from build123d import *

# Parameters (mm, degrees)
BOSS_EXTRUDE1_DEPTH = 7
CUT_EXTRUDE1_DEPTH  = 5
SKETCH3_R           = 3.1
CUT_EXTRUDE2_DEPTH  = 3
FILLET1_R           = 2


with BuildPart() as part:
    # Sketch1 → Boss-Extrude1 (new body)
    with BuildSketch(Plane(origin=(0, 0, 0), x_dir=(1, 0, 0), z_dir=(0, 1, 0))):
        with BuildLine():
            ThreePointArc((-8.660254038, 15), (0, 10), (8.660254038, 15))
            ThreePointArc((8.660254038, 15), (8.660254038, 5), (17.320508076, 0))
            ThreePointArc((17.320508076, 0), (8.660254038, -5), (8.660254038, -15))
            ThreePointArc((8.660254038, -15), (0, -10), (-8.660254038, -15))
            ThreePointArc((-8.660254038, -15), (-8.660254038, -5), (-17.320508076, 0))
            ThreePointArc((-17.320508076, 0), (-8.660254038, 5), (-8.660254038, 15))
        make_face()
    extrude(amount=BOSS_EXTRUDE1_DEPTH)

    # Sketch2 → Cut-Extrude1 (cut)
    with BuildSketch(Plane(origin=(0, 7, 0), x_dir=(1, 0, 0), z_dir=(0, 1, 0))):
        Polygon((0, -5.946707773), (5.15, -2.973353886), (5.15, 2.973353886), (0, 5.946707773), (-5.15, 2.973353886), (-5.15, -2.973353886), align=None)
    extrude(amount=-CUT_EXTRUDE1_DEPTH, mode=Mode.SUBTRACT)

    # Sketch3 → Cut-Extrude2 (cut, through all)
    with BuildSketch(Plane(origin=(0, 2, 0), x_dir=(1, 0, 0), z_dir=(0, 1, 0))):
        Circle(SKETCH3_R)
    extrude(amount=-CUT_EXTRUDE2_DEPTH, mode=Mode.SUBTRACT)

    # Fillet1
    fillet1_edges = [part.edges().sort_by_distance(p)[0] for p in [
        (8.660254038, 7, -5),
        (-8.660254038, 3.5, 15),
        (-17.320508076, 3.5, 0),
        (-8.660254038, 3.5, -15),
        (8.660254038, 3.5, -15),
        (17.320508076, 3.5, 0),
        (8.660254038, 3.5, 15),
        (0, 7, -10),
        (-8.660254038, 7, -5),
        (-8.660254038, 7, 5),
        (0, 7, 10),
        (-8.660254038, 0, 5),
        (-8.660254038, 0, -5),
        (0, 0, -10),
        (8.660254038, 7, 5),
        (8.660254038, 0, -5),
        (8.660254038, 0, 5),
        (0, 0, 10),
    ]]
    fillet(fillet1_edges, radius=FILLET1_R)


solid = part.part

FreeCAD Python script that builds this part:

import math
import FreeCAD as App
import Part
import Sketcher
Q = App.Units.Quantity


def edges_at(feature, points):
    """Names of the edges that pass closest to the given points."""
    edges = feature.Shape.Edges
    near = lambda p: min(range(len(edges)), key=lambda i: edges[i].distToShape(Part.Vertex(*p))[0])
    return sorted({f"Edge{near(p) + 1}" for p in points})

doc = App.newDocument("Part")
body = doc.addObject("PartDesign::Body", "Body")

# Sketch on XZ plane
sketch1 = doc.addObject("Sketcher::SketchObject", "Sketch")
body.addObject(sketch1)
sketch1.AttachmentSupport = (doc.XZ_Plane, [""])
sketch1.MapMode = "FlatFace"
sketch1.addGeometry(Part.ArcOfCircle(Part.Circle(App.Vector(0, -20, 0), App.Vector(0, 0, 1), 10), math.radians(30), math.radians(150)), False)
sketch1.addGeometry(Part.ArcOfCircle(Part.Circle(App.Vector(-17, -10, 0), App.Vector(0, 0, 1), 10), math.radians(-30), math.radians(90)), False)
sketch1.addGeometry(Part.ArcOfCircle(Part.Circle(App.Vector(-17, 10, 0), App.Vector(0, 0, 1), 10), math.radians(-90), math.radians(30)), False)
sketch1.addGeometry(Part.ArcOfCircle(Part.Circle(App.Vector(0, 20, 0), App.Vector(0, 0, 1), 10), math.radians(-150), math.radians(-30)), False)
sketch1.addGeometry(Part.ArcOfCircle(Part.Circle(App.Vector(17, 10, 0), App.Vector(0, 0, 1), 10), math.radians(150), math.radians(270)), False)
sketch1.addGeometry(Part.ArcOfCircle(Part.Circle(App.Vector(17, -10, 0), App.Vector(0, 0, 1), 10), math.radians(90), math.radians(210)), False)
sketch1.addConstraint(Sketcher.Constraint("Tangent", 0, 2, 1, 1))
sketch1.addConstraint(Sketcher.Constraint("Tangent", 1, 2, 2, 1))
sketch1.addConstraint(Sketcher.Constraint("Tangent", 2, 2, 3, 1))
sketch1.addConstraint(Sketcher.Constraint("Tangent", 3, 2, 4, 1))
sketch1.addConstraint(Sketcher.Constraint("Tangent", 4, 2, 5, 1))
sketch1.addConstraint(Sketcher.Constraint("Tangent", 5, 2, 0, 1))
sketch1.addConstraint(Sketcher.Constraint("Equal", 0, 1))
sketch1.addConstraint(Sketcher.Constraint("Equal", 1, 2))
sketch1.addConstraint(Sketcher.Constraint("Equal", 2, 3))
sketch1.addConstraint(Sketcher.Constraint("Equal", 3, 4))
sketch1.addConstraint(Sketcher.Constraint("Equal", 4, 5))
sketch1.addConstraint(Sketcher.Constraint("Symmetric", 0, 3, 3, 3, -1, 1))
sketch1.addConstraint(Sketcher.Constraint("Symmetric", 2, 3, 4, 3, -2))
sketch1.addConstraint(Sketcher.Constraint("PointOnObject", 1, 2, -1))
sketch1.addConstraint(Sketcher.Constraint("Radius", 0, 10.0))
sketch1.addConstraint(Sketcher.Constraint("DistanceY", 0, 3, -1, 1, 20.0))
pad1 = doc.addObject("PartDesign::Pad", "Pad")
body.addObject(pad1)
pad1.Profile = sketch1
pad1.Length = 7
pad1.Reversed = True

# Sketch on XZ plane
sketch2 = doc.addObject("Sketcher::SketchObject", "Sketch001")
body.addObject(sketch2)
sketch2.AttachmentSupport = (doc.XZ_Plane, [""])
sketch2.MapMode = "FlatFace"
sketch2.AttachmentOffset = App.Placement(App.Vector(0, 0, -7), App.Rotation())
sketch2.addGeometry(Part.LineSegment(App.Vector(0, 6, 0), App.Vector(5, 3, 0)), False)
sketch2.addGeometry(Part.LineSegment(App.Vector(5, 3, 0), App.Vector(5, -3, 0)), False)
sketch2.addGeometry(Part.LineSegment(App.Vector(5, -3, 0), App.Vector(0, -6, 0)), False)
sketch2.addGeometry(Part.LineSegment(App.Vector(0, -6, 0), App.Vector(-5, -3, 0)), False)
sketch2.addGeometry(Part.LineSegment(App.Vector(-5, -3, 0), App.Vector(-5, 3, 0)), False)
sketch2.addGeometry(Part.LineSegment(App.Vector(-5, 3, 0), App.Vector(0, 6, 0)), False)
sketch2.addConstraint(Sketcher.Constraint("Coincident", 0, 2, 1, 1))
sketch2.addConstraint(Sketcher.Constraint("Coincident", 1, 2, 2, 1))
sketch2.addConstraint(Sketcher.Constraint("Coincident", 2, 2, 3, 1))
sketch2.addConstraint(Sketcher.Constraint("Coincident", 3, 2, 4, 1))
sketch2.addConstraint(Sketcher.Constraint("Coincident", 4, 2, 5, 1))
sketch2.addConstraint(Sketcher.Constraint("Coincident", 5, 2, 0, 1))
sketch2.addConstraint(Sketcher.Constraint("Vertical", 1))
sketch2.addConstraint(Sketcher.Constraint("Vertical", 4))
sketch2.addConstraint(Sketcher.Constraint("Symmetric", 0, 2, 3, 2, -1, 1))
sketch2.addConstraint(Sketcher.Constraint("Symmetric", 2, 2, 5, 2, -1, 1))
sketch2.addConstraint(Sketcher.Constraint("PointOnObject", 2, 2, -2))
sketch2.addConstraint(Sketcher.Constraint("Parallel", 2, 5))
sketch2.addConstraint(Sketcher.Constraint("Horizontal", 1, 2, 3, 2))
sketch2.addConstraint(Sketcher.Constraint("Angle", 0, Q("-30 deg")))
sketch2.addConstraint(Sketcher.Constraint("DistanceX", 3, 2, 1, 2, 10.3))
sketch2.addConstraint(Sketcher.Constraint("DistanceY", 1, 2, 1, 1, 5.946708))
pocket1 = doc.addObject("PartDesign::Pocket", "Pocket")
body.addObject(pocket1)
pocket1.Profile = sketch2
pocket1.Length = 5
pocket1.Reversed = True

# Sketch on XZ plane
sketch3 = doc.addObject("Sketcher::SketchObject", "Sketch002")
body.addObject(sketch3)
sketch3.AttachmentSupport = (doc.XZ_Plane, [""])
sketch3.MapMode = "FlatFace"
sketch3.AttachmentOffset = App.Placement(App.Vector(0, 0, -2), App.Rotation())
sketch3.addGeometry(Part.Circle(App.Vector(0, 0, 0), App.Vector(0, 0, 1), 3.1), False)
sketch3.addConstraint(Sketcher.Constraint("Coincident", 0, 3, -1, 1))
sketch3.addConstraint(Sketcher.Constraint("Diameter", 0, 6.2))
pocket2 = doc.addObject("PartDesign::Pocket", "Pocket001")
body.addObject(pocket2)
pocket2.Profile = sketch3
pocket2.Type = "ThroughAll"
pocket2.Reversed = True
doc.recompute()

fillet = doc.addObject("PartDesign::Fillet", "Fillet")
body.addObject(fillet)
fillet.Base = (pocket2, edges_at(pocket2, [
    (8.66, 7, -5),
    (-8.66, 3.5, 15),
    (-17.321, 3.5, 0),
    (-8.66, 3.5, -15),
    (8.66, 3.5, -15),
    (17.321, 3.5, 0),
    (8.66, 3.5, 15),
    (0, 7, -10),
    (-8.66, 7, -5),
    (-8.66, 7, 5),
    (0, 7, 10),
    (-8.66, 0, 5),
    (-8.66, 0, -5),
    (0, 0, -10),
    (8.66, 7, 5),
    (8.66, 0, -5),
    (8.66, 0, 5),
    (0, 0, 10),
]))
fillet.Radius = 2

doc.recompute()
